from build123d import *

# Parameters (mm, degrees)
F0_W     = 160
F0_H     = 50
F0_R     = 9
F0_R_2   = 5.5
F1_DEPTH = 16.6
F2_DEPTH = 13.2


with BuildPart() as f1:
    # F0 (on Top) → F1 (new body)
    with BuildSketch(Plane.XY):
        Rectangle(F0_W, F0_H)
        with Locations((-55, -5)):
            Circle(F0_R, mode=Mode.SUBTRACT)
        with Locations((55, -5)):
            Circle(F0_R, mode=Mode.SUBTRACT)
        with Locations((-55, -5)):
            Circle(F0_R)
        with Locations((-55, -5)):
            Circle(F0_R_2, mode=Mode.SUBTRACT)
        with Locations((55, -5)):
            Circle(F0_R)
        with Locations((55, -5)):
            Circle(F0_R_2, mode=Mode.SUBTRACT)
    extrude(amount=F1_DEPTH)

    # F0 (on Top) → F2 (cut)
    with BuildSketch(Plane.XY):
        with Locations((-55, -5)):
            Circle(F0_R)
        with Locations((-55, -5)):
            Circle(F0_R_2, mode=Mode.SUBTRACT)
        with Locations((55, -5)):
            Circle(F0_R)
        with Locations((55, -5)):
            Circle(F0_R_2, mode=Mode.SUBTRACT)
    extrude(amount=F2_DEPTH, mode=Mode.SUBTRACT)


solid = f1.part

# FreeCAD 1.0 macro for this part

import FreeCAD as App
import Part
import Sketcher

V = App.Vector


def add_polygon(sketch, points):
    """Adds a closed chain of lines whose ends are joined by coincident constraints."""
    first, n = sketch.GeometryCount, len(points)
    for a, b in zip(points, points[1:] + points[:1]):
        sketch.addGeometry(Part.LineSegment(App.Vector(*a, 0), App.Vector(*b, 0)), False)
    for i in range(n):
        sketch.addConstraint(Sketcher.Constraint("Coincident", first + i, 2, first + (i + 1) % n, 1))

doc = App.newDocument("Part")
params = doc.addObject("Spreadsheet::Sheet", "Params")
for row, (alias, value) in enumerate([
    ("sketch1_diameter", "11 mm"),
    ("sketch1_width", "160 mm"),
    ("sketch1_height", "50 mm"),
    ("pad1_length", "16.6 mm"),
    ("sketch2_diameter", "18 mm"),
    ("sketch2_diameter2", "11 mm"),
    ("pocket1_length", "13.2 mm"),
], start=1):
    params.set(f"A{row}", alias)
    params.set(f"B{row}", "=" + value)
    params.setAlias(f"B{row}", alias)

body = doc.addObject("PartDesign::Body", "Body")

# Sketch on XY plane
sketch1 = body.newObject("Sketcher::SketchObject", "Sketch")
sketch1.AttachmentSupport = (doc.getObject("XY_Plane"), [""])
sketch1.MapMode = "FlatFace"
add_polygon(sketch1, [(-80, 25), (-80, -25), (80, -25), (80, 25)])  # lines 0-3
sketch1.addGeometry(Part.Circle(V(-55, -5, 0), V(0, 0, 1), 6), False)  # 4
sketch1.addGeometry(Part.Circle(V(55, -5, 0), V(0, 0, 1), 6), False)  # 5
sketch1.addConstraint([
    Sketcher.Constraint("Vertical", 0),
    Sketcher.Constraint("Horizontal", 1),
    Sketcher.Constraint("Vertical", 2),
    Sketcher.Constraint("Horizontal", 3),
    Sketcher.Constraint("Equal", 4, 5),
    Sketcher.Constraint("Symmetric", 0, 2, 2, 2, -1, 1),
    Sketcher.Constraint("Symmetric", 4, 3, 5, 3, -2),
    Sketcher.Constraint("Diameter", 4, 11.0),
    Sketcher.Constraint("DistanceX", 1, 1, 1, 2, 160.0),
    Sketcher.Constraint("DistanceY", 0, 2, 0, 1, 50.0),
    Sketcher.Constraint("DistanceX", 4, 3, -1, 1, 55.0),
    Sketcher.Constraint("DistanceY", 4, 3, -1, 1, 5.0),
])
sketch1.setExpression("Constraints[11]", "Params.sketch1_diameter")
sketch1.setExpression("Constraints[12]", "Params.sketch1_width")
sketch1.setExpression("Constraints[13]", "Params.sketch1_height")
pad1 = body.newObject("PartDesign::Pad", "Pad")
pad1.Profile = sketch1
pad1.setExpression("Length", "Params.pad1_length")

# Sketch on XY plane
sketch2 = body.newObject("Sketcher::SketchObject", "Sketch001")
sketch2.AttachmentSupport = (doc.getObject("XY_Plane"), [""])
sketch2.MapMode = "FlatFace"
sketch2.addGeometry([
    Part.Circle(V(-55, -5, 0), V(0, 0, 1), 9),
    Part.Circle(V(-55, -5, 0), V(0, 0, 1), 6),
    Part.Circle(V(55, -5, 0), V(0, 0, 1), 9),
    Part.Circle(V(55, -5, 0), V(0, 0, 1), 6),
], False)
sketch2.addConstraint([
    Sketcher.Constraint("Coincident", 1, 3, 0, 3),
    Sketcher.Constraint("Coincident", 3, 3, 2, 3),
    Sketcher.Constraint("Equal", 0, 2),
    Sketcher.Constraint("Equal", 1, 3),
    Sketcher.Constraint("Symmetric", 0, 3, 2, 3, -2),
    Sketcher.Constraint("Diameter", 0, 18.0),
    Sketcher.Constraint("Diameter", 1, 11.0),
    Sketcher.Constraint("DistanceX", 0, 3, -1, 1, 55.0),
    Sketcher.Constraint("DistanceY", 0, 3, -1, 1, 5.0),
])
sketch2.setExpression("Constraints[5]", "Params.sketch2_diameter")
sketch2.setExpression("Constraints[6]", "Params.sketch2_diameter2")
pocket1 = body.newObject("PartDesign::Pocket", "Pocket")
pocket1.Profile = sketch2
pocket1.setExpression("Length", "Params.pocket1_length")
pocket1.Reversed = True

doc.recompute()
